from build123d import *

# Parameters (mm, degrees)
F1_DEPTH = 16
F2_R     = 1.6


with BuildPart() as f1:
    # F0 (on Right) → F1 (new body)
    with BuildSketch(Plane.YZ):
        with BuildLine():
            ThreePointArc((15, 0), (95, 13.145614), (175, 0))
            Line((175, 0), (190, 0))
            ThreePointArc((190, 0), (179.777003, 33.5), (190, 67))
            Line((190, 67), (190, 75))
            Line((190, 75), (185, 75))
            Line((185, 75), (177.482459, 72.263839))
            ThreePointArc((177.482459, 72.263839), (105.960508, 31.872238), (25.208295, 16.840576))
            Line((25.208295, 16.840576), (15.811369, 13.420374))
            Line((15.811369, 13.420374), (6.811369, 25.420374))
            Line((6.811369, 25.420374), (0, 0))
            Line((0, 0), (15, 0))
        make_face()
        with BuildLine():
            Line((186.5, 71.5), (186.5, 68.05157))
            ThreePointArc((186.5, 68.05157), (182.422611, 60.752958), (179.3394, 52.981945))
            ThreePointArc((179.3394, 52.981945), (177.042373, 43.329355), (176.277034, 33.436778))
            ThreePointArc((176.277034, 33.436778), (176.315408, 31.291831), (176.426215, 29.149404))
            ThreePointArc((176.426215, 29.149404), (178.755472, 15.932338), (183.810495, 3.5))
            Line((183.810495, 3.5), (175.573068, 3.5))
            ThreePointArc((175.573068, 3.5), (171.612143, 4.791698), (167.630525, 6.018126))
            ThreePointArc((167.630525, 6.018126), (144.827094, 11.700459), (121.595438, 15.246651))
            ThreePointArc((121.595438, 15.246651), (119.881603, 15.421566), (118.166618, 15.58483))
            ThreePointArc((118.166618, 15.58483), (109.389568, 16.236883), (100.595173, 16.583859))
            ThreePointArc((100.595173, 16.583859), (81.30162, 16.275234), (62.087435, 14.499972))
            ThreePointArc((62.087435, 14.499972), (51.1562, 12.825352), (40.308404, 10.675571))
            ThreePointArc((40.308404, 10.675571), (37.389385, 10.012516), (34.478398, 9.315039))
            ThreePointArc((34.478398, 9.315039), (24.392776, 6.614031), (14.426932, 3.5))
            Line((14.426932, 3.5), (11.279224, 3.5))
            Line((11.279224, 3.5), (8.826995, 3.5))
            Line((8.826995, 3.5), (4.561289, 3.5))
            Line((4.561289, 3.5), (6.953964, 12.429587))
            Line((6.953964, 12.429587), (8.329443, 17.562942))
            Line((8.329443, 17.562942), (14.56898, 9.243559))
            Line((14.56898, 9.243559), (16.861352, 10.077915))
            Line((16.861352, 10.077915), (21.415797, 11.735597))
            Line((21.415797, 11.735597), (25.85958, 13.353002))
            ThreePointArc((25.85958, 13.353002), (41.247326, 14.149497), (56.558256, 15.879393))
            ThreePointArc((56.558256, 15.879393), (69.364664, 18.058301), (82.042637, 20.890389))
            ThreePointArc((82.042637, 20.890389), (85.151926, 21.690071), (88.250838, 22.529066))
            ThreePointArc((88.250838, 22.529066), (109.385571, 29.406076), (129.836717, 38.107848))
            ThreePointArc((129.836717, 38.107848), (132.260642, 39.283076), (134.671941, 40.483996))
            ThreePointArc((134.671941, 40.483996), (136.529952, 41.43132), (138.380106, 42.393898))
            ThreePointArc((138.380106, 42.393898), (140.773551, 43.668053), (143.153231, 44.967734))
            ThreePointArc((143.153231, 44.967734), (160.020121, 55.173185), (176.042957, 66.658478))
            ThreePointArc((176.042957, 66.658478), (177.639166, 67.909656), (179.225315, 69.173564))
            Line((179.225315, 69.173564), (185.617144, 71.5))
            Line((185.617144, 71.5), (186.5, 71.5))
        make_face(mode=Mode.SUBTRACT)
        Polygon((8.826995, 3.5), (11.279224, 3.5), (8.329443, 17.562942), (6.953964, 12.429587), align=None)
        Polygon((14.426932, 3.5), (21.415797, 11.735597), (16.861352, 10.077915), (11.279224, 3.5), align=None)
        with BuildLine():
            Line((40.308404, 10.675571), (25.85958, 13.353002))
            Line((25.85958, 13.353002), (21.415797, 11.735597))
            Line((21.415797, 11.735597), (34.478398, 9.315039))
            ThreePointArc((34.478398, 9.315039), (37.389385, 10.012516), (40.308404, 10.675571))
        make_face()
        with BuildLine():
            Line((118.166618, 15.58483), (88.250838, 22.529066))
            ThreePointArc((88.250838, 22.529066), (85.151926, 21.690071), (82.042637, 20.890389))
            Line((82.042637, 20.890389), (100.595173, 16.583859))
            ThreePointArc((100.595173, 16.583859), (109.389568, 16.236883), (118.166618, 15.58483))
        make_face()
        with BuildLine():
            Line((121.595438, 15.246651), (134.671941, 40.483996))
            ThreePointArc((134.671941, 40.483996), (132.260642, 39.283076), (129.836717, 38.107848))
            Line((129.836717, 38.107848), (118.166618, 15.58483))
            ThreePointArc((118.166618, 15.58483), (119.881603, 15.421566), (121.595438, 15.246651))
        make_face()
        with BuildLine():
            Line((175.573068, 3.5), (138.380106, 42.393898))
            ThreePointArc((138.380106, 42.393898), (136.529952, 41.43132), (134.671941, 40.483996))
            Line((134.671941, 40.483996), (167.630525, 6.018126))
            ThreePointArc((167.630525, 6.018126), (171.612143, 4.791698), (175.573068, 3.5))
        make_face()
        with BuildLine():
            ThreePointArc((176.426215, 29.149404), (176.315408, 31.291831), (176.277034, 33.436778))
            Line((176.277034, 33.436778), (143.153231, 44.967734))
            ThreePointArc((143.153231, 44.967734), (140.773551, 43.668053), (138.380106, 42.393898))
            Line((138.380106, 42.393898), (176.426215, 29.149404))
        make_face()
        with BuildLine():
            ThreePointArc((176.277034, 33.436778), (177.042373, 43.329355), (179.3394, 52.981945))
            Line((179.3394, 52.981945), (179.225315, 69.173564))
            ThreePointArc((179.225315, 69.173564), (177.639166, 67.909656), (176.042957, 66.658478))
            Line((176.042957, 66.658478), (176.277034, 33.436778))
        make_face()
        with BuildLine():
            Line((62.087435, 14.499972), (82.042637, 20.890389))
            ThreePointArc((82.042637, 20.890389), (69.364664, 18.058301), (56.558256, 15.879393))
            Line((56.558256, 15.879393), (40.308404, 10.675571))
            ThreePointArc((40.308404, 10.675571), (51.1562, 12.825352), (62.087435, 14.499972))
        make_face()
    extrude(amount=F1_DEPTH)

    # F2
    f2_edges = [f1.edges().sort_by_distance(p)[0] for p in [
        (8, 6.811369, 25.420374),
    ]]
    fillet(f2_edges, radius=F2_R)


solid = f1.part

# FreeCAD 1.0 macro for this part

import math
import FreeCAD as App
import Part
import Sketcher
Q = App.Units.Quantity


def edges_at(feature, points):
    """Names of the edges that pass closest to the given points."""
    edges = feature.Shape.Edges
    near = lambda p: min(range(len(edges)), key=lambda i: edges[i].distToShape(Part.Vertex(*p))[0])
    return sorted({f"Edge{near(p) + 1}" for p in points})


def add_polygon(sketch, points):
    """Adds a closed chain of lines whose ends are joined by coincident constraints."""
    first, n = sketch.GeometryCount, len(points)
    for a, b in zip(points, points[1:] + points[:1]):
        sketch.addGeometry(Part.LineSegment(App.Vector(*a, 0), App.Vector(*b, 0)), False)
    for i in range(n):
        sketch.addConstraint(Sketcher.Constraint("Coincident", first + i, 2, first + (i + 1) % n, 1))

doc = App.newDocument("Part")
params = doc.addObject("Spreadsheet::Sheet", "Params")
for row, (alias, value) in enumerate([
    ("sketch1_radius", "60.000001 mm"),
    ("sketch1_width", "15 mm"),
    ("sketch1_width2", "5 mm"),
    ("sketch1_height", "8 mm"),
    ("sketch1_length", "8 mm"),
    ("pad1_length", "16 mm"),
    ("fillet_radius", "1.6 mm"),
], start=1):
    params.set(f"A{row}", alias)
    params.set(f"B{row}", "=" + value)
    params.setAlias(f"B{row}", alias)

body = doc.addObject("PartDesign::Body", "Body")

# Sketch on YZ plane
sketch1 = body.newObject("Sketcher::SketchObject", "Sketch")
sketch1.AttachmentSupport = (doc.getObject("YZ_Plane"), [""])
sketch1.MapMode = "FlatFace"
sketch1.addGeometry(Part.ArcOfCircle(Part.Circle(App.Vector(95, -236.9, 0), App.Vector(0, 0, 1), 250), math.radians(71), math.radians(109)), False)  # 0
sketch1.addGeometry(Part.LineSegment(App.Vector(175, 0, 0), App.Vector(190, 0, 0)), False)  # 1
sketch1.addGeometry(Part.ArcOfCircle(Part.Circle(App.Vector(239.8, 33.5, 0), App.Vector(0, 0, 1), 60), math.radians(146), math.radians(214)), False)  # 2
sketch1.addGeometry(Part.LineSegment(App.Vector(190, 67, 0), App.Vector(190, 75, 0)), False)  # 3
sketch1.addGeometry(Part.LineSegment(App.Vector(190, 75, 0), App.Vector(185, 75, 0)), False)  # 4
sketch1.addGeometry(Part.LineSegment(App.Vector(185, 75, 0), App.Vector(177.5, 72.3, 0)), False)  # 5
sketch1.addGeometry(Part.ArcOfCircle(Part.Circle(App.Vector(20.5, 266.8, 0), App.Vector(0, 0, 1), 250), math.radians(-89), math.radians(-51)), False)  # 6
sketch1.addGeometry(Part.LineSegment(App.Vector(25.2, 16.8, 0), App.Vector(15.8, 13.4, 0)), False)  # 7
sketch1.addGeometry(Part.LineSegment(App.Vector(15.8, 13.4, 0), App.Vector(6.8, 25.4, 0)), False)  # 8
sketch1.addGeometry(Part.LineSegment(App.Vector(6.8, 25.4, 0), App.Vector(0, 0, 0)), False)  # 9
sketch1.addGeometry(Part.LineSegment(App.Vector(0, 0, 0), App.Vector(15, 0, 0)), False)  # 10
sketch1.addGeometry(Part.LineSegment(App.Vector(185.6, 71.5, 0), App.Vector(186.5, 71.5, 0)), False)  # 11
sketch1.addGeometry(Part.LineSegment(App.Vector(186.5, 71.5, 0), App.Vector(186.5, 68.1, 0)), False)  # 12
sketch1.addGeometry(Part.ArcOfCircle(Part.Circle(App.Vector(239.8, 33.5, 0), App.Vector(0, 0, 1), 63.5), math.radians(147.04), math.radians(162.13)), False)  # 13
sketch1.addGeometry(Part.LineSegment(App.Vector(179.3, 53, 0), App.Vector(179.2, 69.2, 0)), False)  # 14
sketch1.addGeometry(Part.LineSegment(App.Vector(179.2, 69.2, 0), App.Vector(185.6, 71.5, 0)), False)  # 15
sketch1.addGeometry(Part.LineSegment(App.Vector(176.3, 33.4, 0), App.Vector(143.2, 45, 0)), False)  # 16
sketch1.addGeometry(Part.ArcOfCircle(Part.Circle(App.Vector(20.5, 266.8, 0), App.Vector(0, 0, 1), 253.5), math.radians(-61.05), math.radians(-52.14)), False)  # 17
sketch1.addGeometry(Part.LineSegment(App.Vector(176, 66.7, 0), App.Vector(176.3, 33.4, 0)), False)  # 18
sketch1.addGeometry(Part.ArcOfCircle(Part.Circle(App.Vector(239.8, 33.5, 0), App.Vector(0, 0, 1), 63.5), math.radians(-176), math.radians(-152)), False)  # 19
sketch1.addGeometry(Part.LineSegment(App.Vector(183.8, 3.5, 0), App.Vector(175.6, 3.5, 0)), False)  # 20
sketch1.addGeometry(Part.LineSegment(App.Vector(175.6, 3.5, 0), App.Vector(138.4, 42.4, 0)), False)  # 21
sketch1.addGeometry(Part.LineSegment(App.Vector(138.4, 42.4, 0), App.Vector(176.4, 29.1, 0)), False)  # 22
sketch1.addGeometry(Part.ArcOfCircle(Part.Circle(App.Vector(95, -236.9, 0), App.Vector(0, 0, 1), 253.5), math.radians(73.35), math.radians(83.98)), False)  # 23
sketch1.addGeometry(Part.LineSegment(App.Vector(121.6, 15.2, 0), App.Vector(134.7, 40.5, 0)), False)  # 24
sketch1.addGeometry(Part.LineSegment(App.Vector(134.7, 40.5, 0), App.Vector(167.6, 6, 0)), False)  # 25
sketch1.addGeometry(Part.LineSegment(App.Vector(118.2, 15.6, 0), App.Vector(88.3, 22.5, 0)), False)  # 26
sketch1.addGeometry(Part.ArcOfCircle(Part.Circle(App.Vector(20.5, 266.8, 0), App.Vector(0, 0, 1), 253.5), math.radians(-74.49), math.radians(-64.44)), False)  # 27
sketch1.addGeometry(Part.LineSegment(App.Vector(129.8, 38.1, 0), App.Vector(118.2, 15.6, 0)), False)  # 28
sketch1.addGeometry(Part.ArcOfCircle(Part.Circle(App.Vector(95, -236.9, 0), App.Vector(0, 0, 1), 253.5), math.radians(88.74), math.radians(97.46)), False)  # 29
sketch1.addGeometry(Part.LineSegment(App.Vector(62.1, 14.5, 0), App.Vector(82, 20.9, 0)), False)  # 30
sketch1.addGeometry(Part.LineSegment(App.Vector(82, 20.9, 0), App.Vector(100.6, 16.6, 0)), False)  # 31
sketch1.addGeometry(Part.LineSegment(App.Vector(40.3, 10.7, 0), App.Vector(25.9, 13.4, 0)), False)  # 32
sketch1.addGeometry(Part.ArcOfCircle(Part.Circle(App.Vector(20.5, 266.8, 0), App.Vector(0, 0, 1), 253.5), math.radians(-88.78), math.radians(-81.81)), False)  # 33
sketch1.addGeometry(Part.LineSegment(App.Vector(56.6, 15.9, 0), App.Vector(40.3, 10.7, 0)), False)  # 34
sketch1.addGeometry(Part.ArcOfCircle(Part.Circle(App.Vector(95, -236.9, 0), App.Vector(0, 0, 1), 253.5), math.radians(103.81), math.radians(108.53)), False)  # 35
sketch1.addGeometry(Part.LineSegment(App.Vector(14.4, 3.5, 0), App.Vector(21.4, 11.7, 0)), False)  # 36
sketch1.addGeometry(Part.LineSegment(App.Vector(21.4, 11.7, 0), App.Vector(34.5, 9.3, 0)), False)  # 37
add_polygon(sketch1, [(11.3, 3.5), (8.3, 17.6), (14.6, 9.2), (16.9, 10.1)])  # lines 38-41
add_polygon(sketch1, [(4.6, 3.5), (7, 12.4), (8.8, 3.5)])  # lines 42-44
sketch1.addConstraint(Sketcher.Constraint("Coincident", 0, 1, 1, 1))
sketch1.addConstraint(Sketcher.Constraint("Coincident", 1, 2, 2, 2))
sketch1.addConstraint(Sketcher.Constraint("Coincident", 2, 1, 3, 1))
sketch1.addConstraint(Sketcher.Constraint("Coincident", 3, 2, 4, 1))
sketch1.addConstraint(Sketcher.Constraint("Coincident", 4, 2, 5, 1))
sketch1.addConstraint(Sketcher.Constraint("Coincident", 5, 2, 6, 2))
sketch1.addConstraint(Sketcher.Constraint("Coincident", 6, 1, 7, 1))
sketch1.addConstraint(Sketcher.Constraint("Coincident", 7, 2, 8, 1))
sketch1.addConstraint(Sketcher.Constraint("Coincident", 8, 2, 9, 1))
sketch1.addConstraint(Sketcher.Constraint("Coincident", 9, 2, 10, 1))
sketch1.addConstraint(Sketcher.Constraint("Coincident", 10, 2, 0, 2))
sketch1.addConstraint(Sketcher.Constraint("Coincident", 11, 2, 12, 1))
sketch1.addConstraint(Sketcher.Constraint("Coincident", 12, 2, 13, 1))
sketch1.addConstraint(Sketcher.Constraint("Coincident", 13, 2, 14, 1))
sketch1.addConstraint(Sketcher.Constraint("Coincident", 14, 2, 15, 1))
sketch1.addConstraint(Sketcher.Constraint("Coincident", 15, 2, 11, 1))
sketch1.addConstraint(Sketcher.Constraint("Coincident", 16, 2, 17, 1))
sketch1.addConstraint(Sketcher.Constraint("Coincident", 17, 2, 18, 1))
sketch1.addConstraint(Sketcher.Constraint("Coincident", 18, 2, 16, 1))
sketch1.addConstraint(Sketcher.Constraint("Coincident", 19, 2, 20, 1))
sketch1.addConstraint(Sketcher.Constraint("Coincident", 20, 2, 21, 1))
sketch1.addConstraint(Sketcher.Constraint("Coincident", 21, 2, 22, 1))
sketch1.addConstraint(Sketcher.Constraint("Coincident", 22, 2, 19, 1))
sketch1.addConstraint(Sketcher.Constraint("Coincident", 23, 2, 24, 1))
sketch1.addConstraint(Sketcher.Constraint("Coincident", 24, 2, 25, 1))
sketch1.addConstraint(Sketcher.Constraint("Coincident", 25, 2, 23, 1))
sketch1.addConstraint(Sketcher.Constraint("Coincident", 26, 2, 27, 1))
sketch1.addConstraint(Sketcher.Constraint("Coincident", 27, 2, 28, 1))
sketch1.addConstraint(Sketcher.Constraint("Coincident", 28, 2, 26, 1))
sketch1.addConstraint(Sketcher.Constraint("Coincident", 29, 2, 30, 1))
sketch1.addConstraint(Sketcher.Constraint("Coincident", 30, 2, 31, 1))
sketch1.addConstraint(Sketcher.Constraint("Coincident", 31, 2, 29, 1))
sketch1.addConstraint(Sketcher.Constraint("Coincident", 32, 2, 33, 1))
sketch1.addConstraint(Sketcher.Constraint("Coincident", 33, 2, 34, 1))
sketch1.addConstraint(Sketcher.Constraint("Coincident", 34, 2, 32, 1))
sketch1.addConstraint(Sketcher.Constraint("Coincident", 35, 2, 36, 1))
sketch1.addConstraint(Sketcher.Constraint("Coincident", 36, 2, 37, 1))
sketch1.addConstraint(Sketcher.Constraint("Coincident", 37, 2, 35, 1))
sketch1.addConstraint(Sketcher.Constraint("Horizontal", 1))
sketch1.addConstraint(Sketcher.Constraint("Vertical", 3))
sketch1.addConstraint(Sketcher.Constraint("Horizontal", 4))
sketch1.addConstraint(Sketcher.Constraint("Horizontal", 10))
sketch1.addConstraint(Sketcher.Constraint("Horizontal", 11))
sketch1.addConstraint(Sketcher.Constraint("Vertical", 12))
sketch1.addConstraint(Sketcher.Constraint("Horizontal", 20))
sketch1.addConstraint(Sketcher.Constraint("Horizontal", 44))
sketch1.addConstraint(Sketcher.Constraint("Coincident", 9, 2, -1, 1))
sketch1.addConstraint(Sketcher.Constraint("Coincident", 19, 3, 2, 3))
sketch1.addConstraint(Sketcher.Constraint("PointOnObject", 0, 1, -1))
sketch1.addConstraint(Sketcher.Constraint("Parallel", 5, 7))
sketch1.addConstraint(Sketcher.Constraint("Parallel", 7, 15))
sketch1.addConstraint(Sketcher.Constraint("Parallel", 14, 18))
sketch1.addConstraint(Sketcher.Constraint("Parallel", 16, 22))
sketch1.addConstraint(Sketcher.Constraint("Parallel", 21, 25))
sketch1.addConstraint(Sketcher.Constraint("Parallel", 24, 28))
sketch1.addConstraint(Sketcher.Constraint("Parallel", 26, 31))
sketch1.addConstraint(Sketcher.Constraint("Parallel", 30, 34))
sketch1.addConstraint(Sketcher.Constraint("Parallel", 32, 37))
sketch1.addConstraint(Sketcher.Constraint("Parallel", 8, 39))
sketch1.addConstraint(Sketcher.Constraint("Parallel", 15, 40))
sketch1.addConstraint(Sketcher.Constraint("Parallel", 36, 41))
sketch1.addConstraint(Sketcher.Constraint("Parallel", 9, 42))
sketch1.addConstraint(Sketcher.Constraint("Parallel", 38, 43))
sketch1.addConstraint(Sketcher.Constraint("Horizontal", 20, 2, 35, 2))
sketch1.addConstraint(Sketcher.Constraint("Horizontal", 35, 2, 41, 2))
sketch1.addConstraint(Sketcher.Constraint("Horizontal", 41, 2, 43, 2))
sketch1.addConstraint(Sketcher.Constraint("Vertical", 6, 3, 33, 3))
sketch1.addConstraint(Sketcher.Constraint("Vertical", 1, 2, 2, 1))
sketch1.addConstraint(Sketcher.Constraint("Equal", 1, 10))
sketch1.addConstraint(Sketcher.Constraint("Radius", 2, Q("60.000001 mm")))
sketch1.addConstraint(Sketcher.Constraint("DistanceX", 1, 1, 1, 2, Q("15 mm")))
sketch1.addConstraint(Sketcher.Constraint("DistanceX", 4, 2, 4, 1, Q("5 mm")))
sketch1.addConstraint(Sketcher.Constraint("DistanceY", 3, 1, 3, 2, Q("8 mm")))
sketch1.addConstraint(Sketcher.Constraint("Angle", 5, Q("-160.000001 deg")))
sketch1.addConstraint(Sketcher.Constraint("Angle", 9, Q("-105.000001 deg")))
sketch1.addConstraint(Sketcher.Constraint("Distance", 5, Q("8 mm")))
sketch1.addConstraint(Sketcher.Constraint("Distance", 7, Q("10 mm")))
sketch1.addConstraint(Sketcher.Constraint("Distance", 8, Q("15 mm")))
sketch1.addConstraint(Sketcher.Constraint("DistanceX", -1, 1, 0, 3, Q("95 mm")))
sketch1.addConstraint(Sketcher.Constraint("DistanceY", -1, 1, 2, 1, Q("67 mm")))
sketch1.addConstraint(Sketcher.Constraint("DistanceX", 8, 2, 7, 2, Q("9 mm")))
sketch1.addConstraint(Sketcher.Constraint("DistanceY", 2, 3, 11, 2, Q("38 mm")))
sketch1.addConstraint(Sketcher.Constraint("DistanceX", -1, 1, 11, 2, Q("186.5 mm")))
sketch1.addConstraint(Sketcher.Constraint("DistanceY", -1, 1, 19, 2, Q("3.5 mm")))
sketch1.addConstraint(Sketcher.Constraint("Radius", 19, Q("63.50001 mm")))
sketch1.addConstraint(Sketcher.Constraint("Radius", 27, Q("253.499869 mm")))
sketch1.addConstraint(Sketcher.Constraint("Radius", 29, Q("253.499979 mm")))
sketch1.addConstraint(Sketcher.Constraint("Radius", 33, Q("253.500048 mm")))
sketch1.addConstraint(Sketcher.Constraint("Radius", 0, Q("250.000006 mm")))
sketch1.addConstraint(Sketcher.Constraint("Radius", 6, Q("250.000003 mm")))
sketch1.addConstraint(Sketcher.Constraint("Radius", 13, Q("63.500033 mm")))
sketch1.addConstraint(Sketcher.Constraint("Radius", 17, Q("253.500084 mm")))
sketch1.addConstraint(Sketcher.Constraint("Radius", 23, Q("253.499975 mm")))
sketch1.addConstraint(Sketcher.Constraint("Radius", 35, Q("253.499948 mm")))
sketch1.addConstraint(Sketcher.Constraint("DistanceX", 23, 3, 2, 3, Q("144.776999 mm")))
sketch1.addConstraint(Sketcher.Constraint("DistanceY", 35, 2, 32, 2, Q("9.853002 mm")))
sketch1.addConstraint(Sketcher.Constraint("Distance", 25, Q("47.6882 mm")))
sketch1.addConstraint(Sketcher.Constraint("Distance", 32, Q("14.6948 mm")))
sketch1.addConstraint(Sketcher.Constraint("DistanceY", 12, 2, 12, 1, Q("3.44843 mm")))
sketch1.addConstraint(Sketcher.Constraint("DistanceX", -1, 1, 13, 2, Q("179.3394 mm")))
sketch1.addConstraint(Sketcher.Constraint("DistanceY", 18, 2, 17, 2, Q("33.2217 mm")))
sketch1.addConstraint(Sketcher.Constraint("DistanceX", 26, 2, 23, 2, Q("33.3446 mm")))
sketch1.addConstraint(Sketcher.Constraint("DistanceX", 28, 2, 27, 2, Q("11.670099 mm")))
sketch1.addConstraint(Sketcher.Constraint("DistanceY", 7, 2, 29, 2, Q("1.079598 mm")))
sketch1.addConstraint(Sketcher.Constraint("DistanceX", 30, 2, 26, 2, Q("6.208201 mm")))
sketch1.addConstraint(Sketcher.Constraint("DistanceY", 34, 2, 29, 2, Q("3.824401 mm")))
sketch1.addConstraint(Sketcher.Constraint("DistanceX", 36, 2, 37, 2, Q("13.062601 mm")))
sketch1.addConstraint(Sketcher.Constraint("Distance", 14, Q("16.192021 mm")))
sketch1.addConstraint(Sketcher.Constraint("Distance", 22, Q("40.285519 mm")))
sketch1.addConstraint(Sketcher.Constraint("Distance", 28, Q("25.366859 mm")))
sketch1.addConstraint(Sketcher.Constraint("Distance", 30, Q("20.953461 mm")))
sketch1.addConstraint(Sketcher.Constraint("Distance", 34, Q("17.06275 mm")))
sketch1.addConstraint(Sketcher.Constraint("Distance", 37, Q("13.284978 mm")))
sketch1.addConstraint(Sketcher.Constraint("Distance", 38, Q("14.368979 mm")))
sketch1.addConstraint(Sketcher.Constraint("Distance", 39, Q("10.399229 mm")))
sketch1.addConstraint(Sketcher.Constraint("Distance", 40, Q("2.439492 mm")))
sketch1.addConstraint(Sketcher.Constraint("Distance", 41, Q("8.627231 mm")))
sketch1.addConstraint(Sketcher.Constraint("Distance", 42, Q("9.244589 mm")))
sketch1.addConstraint(Sketcher.Constraint("DistanceX", 11, 1, 11, 2, Q("0.882856 mm")))
sketch1.addConstraint(Sketcher.Constraint("DistanceX", 20, 2, 20, 1, Q("8.237427 mm")))
sketch1.addConstraint(Sketcher.Constraint("DistanceY", 23, 3, -1, 1, Q("236.854361 mm")))
sketch1.addConstraint(Sketcher.Constraint("DistanceY", -1, 1, 27, 3, Q("266.795269 mm")))
sketch1.addConstraint(Sketcher.Constraint("DistanceY", -1, 1, 33, 3, Q("266.795441 mm")))
sketch1.addConstraint(Sketcher.Constraint("DistanceX", -1, 1, 16, 2, Q("143.153231 mm")))
sketch1.addConstraint(Sketcher.Constraint("DistanceY", -1, 1, 17, 2, Q("66.658478 mm")))
sketch1.addConstraint(Sketcher.Constraint("DistanceX", -1, 1, 24, 2, Q("134.671941 mm")))
sketch1.addConstraint(Sketcher.Constraint("DistanceX", -1, 1, 26, 2, Q("88.250838 mm")))
sketch1.addConstraint(Sketcher.Constraint("DistanceX", -1, 1, 28, 2, Q("118.166618 mm")))
sketch1.addConstraint(Sketcher.Constraint("DistanceY", -1, 1, 28, 2, Q("15.58483 mm")))
sketch1.addConstraint(Sketcher.Constraint("DistanceY", -1, 1, 31, 2, Q("16.583859 mm")))
sketch1.addConstraint(Sketcher.Constraint("DistanceX", -1, 1, 35, 2, Q("14.426932 mm")))
sketch1.addConstraint(Sketcher.Constraint("DistanceY", -1, 1, 37, 2, Q("9.315039 mm")))
sketch1.addConstraint(Sketcher.Constraint("DistanceX", -1, 1, 39, 2, Q("14.56898 mm")))
sketch1.addConstraint(Sketcher.Constraint("DistanceX", -1, 1, 44, 2, Q("4.561289 mm")))
sketch1.addConstraint(Sketcher.Constraint("DistanceY", 0, 3, 13, 3, Q("270.354378 mm")))
sketch1.addConstraint(Sketcher.Constraint("DistanceX", 17, 3, 2, 3, Q("219.32158 mm")))
sketch1.addConstraint(Sketcher.Constraint("DistanceY", 19, 3, 17, 3, Q("233.295459 mm")))
sketch1.setExpression("Constraints[76]", "Params.sketch1_radius")
sketch1.setExpression("Constraints[77]", "Params.sketch1_width")
sketch1.setExpression("Constraints[78]", "Params.sketch1_width2")
sketch1.setExpression("Constraints[79]", "Params.sketch1_height")
sketch1.setExpression("Constraints[82]", "Params.sketch1_length")
pad1 = body.newObject("PartDesign::Pad", "Pad")
pad1.Profile = sketch1
pad1.setExpression("Length", "Params.pad1_length")
doc.recompute()

fillet = body.newObject("PartDesign::Fillet", "Fillet")
fillet.Base = (pad1, edges_at(pad1, [(8, 6.811, 25.42)]))
fillet.setExpression("Radius", "Params.fillet_radius")

doc.recompute()
